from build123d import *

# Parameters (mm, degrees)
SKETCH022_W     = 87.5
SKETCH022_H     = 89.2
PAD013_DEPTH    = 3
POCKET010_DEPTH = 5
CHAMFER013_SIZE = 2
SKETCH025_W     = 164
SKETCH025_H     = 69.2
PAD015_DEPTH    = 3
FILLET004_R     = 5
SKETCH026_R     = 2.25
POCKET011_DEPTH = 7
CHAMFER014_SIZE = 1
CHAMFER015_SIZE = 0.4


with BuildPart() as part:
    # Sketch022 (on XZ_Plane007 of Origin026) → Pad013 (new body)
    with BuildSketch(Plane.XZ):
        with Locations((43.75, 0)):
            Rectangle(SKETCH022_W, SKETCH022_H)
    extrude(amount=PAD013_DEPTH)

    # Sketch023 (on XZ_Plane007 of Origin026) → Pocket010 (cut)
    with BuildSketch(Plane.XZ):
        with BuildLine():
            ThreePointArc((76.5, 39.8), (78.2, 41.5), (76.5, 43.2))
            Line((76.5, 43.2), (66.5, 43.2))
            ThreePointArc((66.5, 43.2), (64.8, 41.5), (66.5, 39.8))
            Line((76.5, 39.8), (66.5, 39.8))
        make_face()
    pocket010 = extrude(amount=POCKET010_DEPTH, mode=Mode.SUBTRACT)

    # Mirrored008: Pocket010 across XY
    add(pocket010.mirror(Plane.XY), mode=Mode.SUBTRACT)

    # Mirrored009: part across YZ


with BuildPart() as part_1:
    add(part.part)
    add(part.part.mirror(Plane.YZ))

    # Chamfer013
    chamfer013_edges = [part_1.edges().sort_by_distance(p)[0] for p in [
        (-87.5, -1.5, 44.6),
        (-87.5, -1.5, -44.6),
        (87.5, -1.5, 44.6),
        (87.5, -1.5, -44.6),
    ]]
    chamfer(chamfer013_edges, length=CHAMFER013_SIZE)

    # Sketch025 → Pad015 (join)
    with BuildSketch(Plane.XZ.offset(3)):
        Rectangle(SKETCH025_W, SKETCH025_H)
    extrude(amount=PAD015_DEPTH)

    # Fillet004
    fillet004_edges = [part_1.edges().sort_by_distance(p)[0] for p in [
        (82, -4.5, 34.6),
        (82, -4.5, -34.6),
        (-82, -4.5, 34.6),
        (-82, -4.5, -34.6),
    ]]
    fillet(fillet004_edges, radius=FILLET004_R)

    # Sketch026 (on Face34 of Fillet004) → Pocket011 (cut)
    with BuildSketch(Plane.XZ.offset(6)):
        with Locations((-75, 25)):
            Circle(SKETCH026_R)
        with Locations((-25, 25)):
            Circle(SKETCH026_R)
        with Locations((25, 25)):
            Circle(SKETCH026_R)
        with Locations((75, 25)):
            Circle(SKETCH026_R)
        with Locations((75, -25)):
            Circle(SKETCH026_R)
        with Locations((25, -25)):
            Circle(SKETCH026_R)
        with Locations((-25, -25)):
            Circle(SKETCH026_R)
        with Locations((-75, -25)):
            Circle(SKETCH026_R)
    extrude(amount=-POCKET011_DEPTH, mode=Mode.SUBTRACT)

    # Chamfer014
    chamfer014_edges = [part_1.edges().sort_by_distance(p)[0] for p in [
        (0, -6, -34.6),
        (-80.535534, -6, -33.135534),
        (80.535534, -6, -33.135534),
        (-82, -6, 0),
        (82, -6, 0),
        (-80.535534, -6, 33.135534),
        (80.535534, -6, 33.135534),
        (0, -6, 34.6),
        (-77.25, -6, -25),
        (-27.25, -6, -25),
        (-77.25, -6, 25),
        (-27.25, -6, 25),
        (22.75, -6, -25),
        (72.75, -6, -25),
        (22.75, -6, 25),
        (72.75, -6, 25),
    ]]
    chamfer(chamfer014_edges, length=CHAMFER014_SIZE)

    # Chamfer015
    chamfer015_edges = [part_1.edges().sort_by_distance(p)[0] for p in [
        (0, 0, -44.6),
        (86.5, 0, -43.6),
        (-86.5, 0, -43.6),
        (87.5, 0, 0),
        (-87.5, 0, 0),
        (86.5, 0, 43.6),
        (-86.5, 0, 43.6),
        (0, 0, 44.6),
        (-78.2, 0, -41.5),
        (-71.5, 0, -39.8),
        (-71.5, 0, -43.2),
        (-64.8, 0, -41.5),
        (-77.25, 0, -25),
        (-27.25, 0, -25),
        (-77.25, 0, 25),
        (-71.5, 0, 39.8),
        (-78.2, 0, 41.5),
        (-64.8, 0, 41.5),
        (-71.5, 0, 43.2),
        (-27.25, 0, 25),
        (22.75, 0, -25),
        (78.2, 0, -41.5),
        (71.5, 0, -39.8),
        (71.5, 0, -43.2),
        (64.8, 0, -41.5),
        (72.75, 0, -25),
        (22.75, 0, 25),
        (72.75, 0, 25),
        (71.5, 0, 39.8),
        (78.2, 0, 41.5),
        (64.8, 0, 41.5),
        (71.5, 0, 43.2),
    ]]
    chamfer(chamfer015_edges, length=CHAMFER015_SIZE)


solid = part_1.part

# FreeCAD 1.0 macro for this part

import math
import FreeCAD as App
import Part
import Sketcher

V = App.Vector


def edges_at(feature, points):
    """Names of the edges that pass closest to the given points."""
    edges = feature.Shape.Edges
    near = lambda p: min(range(len(edges)), key=lambda i: edges[i].distToShape(Part.Vertex(*p))[0])
    return sorted({f"Edge{near(p) + 1}" for p in points})

doc = App.newDocument("Part")
body = doc.addObject("PartDesign::Body", "Body")

# Sketch on XZ plane
sketch1 = body.newObject("Sketcher::SketchObject", "Sketch")
sketch1.AttachmentSupport = (doc.getObject("XZ_Plane"), [""])
sketch1.MapMode = "FlatFace"
sketch1.addGeometry(Part.LineSegment(V(0, 45, 0), V(0, -45, 0)), False)
sketch1.addGeometry(Part.LineSegment(V(0, -45, 0), V(88, -45, 0)), False)
sketch1.addGeometry(Part.LineSegment(V(88, -45, 0), V(88, 45, 0)), False)
sketch1.addGeometry(Part.LineSegment(V(88, 45, 0), V(0, 45, 0)), False)
sketch1.addConstraint(Sketcher.Constraint("Coincident", 0, 2, 1, 1))
sketch1.addConstraint(Sketcher.Constraint("Coincident", 1, 2, 2, 1))
sketch1.addConstraint(Sketcher.Constraint("Coincident", 2, 2, 3, 1))
sketch1.addConstraint(Sketcher.Constraint("Coincident", 3, 2, 0, 1))
sketch1.addConstraint(Sketcher.Constraint("Vertical", 0))
sketch1.addConstraint(Sketcher.Constraint("Horizontal", 1))
sketch1.addConstraint(Sketcher.Constraint("Vertical", 2))
sketch1.addConstraint(Sketcher.Constraint("Horizontal", 3))
sketch1.addConstraint(Sketcher.Constraint("Symmetric", 0, 2, 3, 2, -1, 1))
sketch1.addConstraint(Sketcher.Constraint("DistanceX", 1, 1, 1, 2, 87.5))
sketch1.addConstraint(Sketcher.Constraint("DistanceY", 0, 2, 0, 1, 89.2))
pad1 = body.newObject("PartDesign::Pad", "Pad")
pad1.Profile = sketch1
pad1.Length = 3

# Sketch on XZ plane
sketch2 = body.newObject("Sketcher::SketchObject", "Sketch001")
sketch2.AttachmentSupport = (doc.getObject("XZ_Plane"), [""])
sketch2.MapMode = "FlatFace"
sketch2.addGeometry(Part.ArcOfCircle(Part.Circle(V(76.5, 41.5, 0), V(0, 0, 1), 1.7), math.radians(-90), math.radians(90)), False)
sketch2.addGeometry(Part.LineSegment(V(76.5, 43.2, 0), V(66.5, 43.2, 0)), False)
sketch2.addGeometry(Part.ArcOfCircle(Part.Circle(V(66.5, 41.5, 0), V(0, 0, 1), 1.7), math.radians(90), math.radians(270)), False)
sketch2.addGeometry(Part.LineSegment(V(66.5, 39.8, 0), V(76.5, 39.8, 0)), False)
sketch2.addConstraint(Sketcher.Constraint("Tangent", 0, 2, 1, 1))
sketch2.addConstraint(Sketcher.Constraint("Tangent", 1, 2, 2, 1))
sketch2.addConstraint(Sketcher.Constraint("Tangent", 2, 2, 3, 1))
sketch2.addConstraint(Sketcher.Constraint("Tangent", 3, 2, 0, 1))
sketch2.addConstraint(Sketcher.Constraint("Horizontal", 1))
sketch2.addConstraint(Sketcher.Constraint("Horizontal", 3))
sketch2.addConstraint(Sketcher.Constraint("Radius", 0, 1.7))
sketch2.addConstraint(Sketcher.Constraint("DistanceX", 1, 2, 1, 1, 10.0))
sketch2.addConstraint(Sketcher.Constraint("DistanceX", -1, 1, 0, 3, 76.5))
sketch2.addConstraint(Sketcher.Constraint("DistanceY", -1, 1, 0, 3, 41.5))
pocket1 = body.newObject("PartDesign::Pocket", "Pocket")
pocket1.Profile = sketch2
pocket1.Length = 5
pocket1.Reversed = True
doc.recompute()

mirrored = body.newObject("PartDesign::Mirrored", "Mirrored")
mirrored.Originals = [pocket1]
mirrored.MirrorPlane = (doc.getObject("XY_Plane"), [""])
body.Tip = mirrored
body2 = doc.addObject("PartDesign::Body", "Body001")
doc.recompute()

body2.BaseFeature = body
doc.recompute()

mirroring = doc.addObject("Part::Mirroring", "Mirroring")
mirroring.Source = body
mirroring.Base = V(0, 0, 0)
mirroring.Normal = V(1, 0, 0)
body3 = doc.addObject("PartDesign::Body", "Body002")
body3.BaseFeature = mirroring
boolean = body2.newObject("PartDesign::Boolean", "Boolean")
boolean.Type = "Fuse"
boolean.addObjects([body3])
doc.recompute()

chamfer = body2.newObject("PartDesign::Chamfer", "Chamfer")
chamfer.Base = (boolean, edges_at(boolean, [
    (-87.5, -1.5, 44.6),
    (-87.5, -1.5, -44.6),
    (87.5, -1.5, 44.6),
    (87.5, -1.5, -44.6),
]))
chamfer.Size = 2

# Sketch on XZ plane
sketch3 = body2.newObject("Sketcher::SketchObject", "Sketch002")
sketch3.AttachmentSupport = (doc.getObject("XZ_Plane001"), [""])
sketch3.MapMode = "FlatFace"
sketch3.AttachmentOffset = App.Placement(V(0, 0, 3), App.Rotation())
sketch3.addGeometry(Part.LineSegment(V(-82, 35, 0), V(-82, -35, 0)), False)
sketch3.addGeometry(Part.LineSegment(V(-82, -35, 0), V(82, -35, 0)), False)
sketch3.addGeometry(Part.LineSegment(V(82, -35, 0), V(82, 35, 0)), False)
sketch3.addGeometry(Part.LineSegment(V(82, 35, 0), V(-82, 35, 0)), False)
sketch3.addConstraint(Sketcher.Constraint("Coincident", 0, 2, 1, 1))
sketch3.addConstraint(Sketcher.Constraint("Coincident", 1, 2, 2, 1))
sketch3.addConstraint(Sketcher.Constraint("Coincident", 2, 2, 3, 1))
sketch3.addConstraint(Sketcher.Constraint("Coincident", 3, 2, 0, 1))
sketch3.addConstraint(Sketcher.Constraint("Vertical", 0))
sketch3.addConstraint(Sketcher.Constraint("Horizontal", 1))
sketch3.addConstraint(Sketcher.Constraint("Vertical", 2))
sketch3.addConstraint(Sketcher.Constraint("Horizontal", 3))
sketch3.addConstraint(Sketcher.Constraint("Symmetric", 0, 2, 2, 2, -1, 1))
sketch3.addConstraint(Sketcher.Constraint("DistanceX", 1, 1, 1, 2, 164.0))
sketch3.addConstraint(Sketcher.Constraint("DistanceY", 0, 2, 0, 1, 69.2))
pad2 = body2.newObject("PartDesign::Pad", "Pad001")
pad2.Profile = sketch3
pad2.Length = 3
doc.recompute()

fillet = body2.newObject("PartDesign::Fillet", "Fillet")
fillet.Base = (pad2, edges_at(pad2, [
    (82, -4.5, 34.6),
    (82, -4.5, -34.6),
    (-82, -4.5, 34.6),
    (-82, -4.5, -34.6),
]))
fillet.Radius = 5

# Sketch on XZ plane
sketch4 = body2.newObject("Sketcher::SketchObject", "Sketch003")
sketch4.AttachmentSupport = (doc.getObject("XZ_Plane001"), [""])
sketch4.MapMode = "FlatFace"
sketch4.AttachmentOffset = App.Placement(V(0, 0, 6), App.Rotation())
sketch4.addGeometry(Part.Circle(V(-75, 25, 0), V(0, 0, 1), 2.2), False)
sketch4.addGeometry(Part.Circle(V(-25, 25, 0), V(0, 0, 1), 2.2), False)
sketch4.addGeometry(Part.Circle(V(25, 25, 0), V(0, 0, 1), 2.2), False)
sketch4.addGeometry(Part.Circle(V(75, 25, 0), V(0, 0, 1), 2.2), False)
sketch4.addGeometry(Part.Circle(V(75, -25, 0), V(0, 0, 1), 2.2), False)
sketch4.addGeometry(Part.Circle(V(25, -25, 0), V(0, 0, 1), 2.2), False)
sketch4.addGeometry(Part.Circle(V(-25, -25, 0), V(0, 0, 1), 2.2), False)
sketch4.addGeometry(Part.Circle(V(-75, -25, 0), V(0, 0, 1), 2.2), False)
sketch4.addConstraint(Sketcher.Constraint("Equal", 0, 1))
sketch4.addConstraint(Sketcher.Constraint("Equal", 1, 2))
sketch4.addConstraint(Sketcher.Constraint("Equal", 2, 3))
sketch4.addConstraint(Sketcher.Constraint("Equal", 3, 4))
sketch4.addConstraint(Sketcher.Constraint("Equal", 4, 5))
sketch4.addConstraint(Sketcher.Constraint("Equal", 5, 6))
sketch4.addConstraint(Sketcher.Constraint("Equal", 6, 7))
sketch4.addConstraint(Sketcher.Constraint("Symmetric", 0, 3, 4, 3, -1, 1))
sketch4.addConstraint(Sketcher.Constraint("Symmetric", 1, 3, 5, 3, -1, 1))
sketch4.addConstraint(Sketcher.Constraint("Symmetric", 2, 3, 6, 3, -1, 1))
sketch4.addConstraint(Sketcher.Constraint("Symmetric", 3, 3, 7, 3, -1, 1))
sketch4.addConstraint(Sketcher.Constraint("Symmetric", 1, 3, 2, 3, -2))
sketch4.addConstraint(Sketcher.Constraint("Symmetric", 0, 3, 3, 3, -2))
sketch4.addConstraint(Sketcher.Constraint("Horizontal", 0, 3, 1, 3))
sketch4.addConstraint(Sketcher.Constraint("Diameter", 0, 4.5))
sketch4.addConstraint(Sketcher.Constraint("DistanceX", 0, 3, -1, 1, 75.0))
sketch4.addConstraint(Sketcher.Constraint("DistanceY", -1, 1, 0, 3, 25.0))
sketch4.addConstraint(Sketcher.Constraint("DistanceX", 1, 3, -1, 1, 25.0))
pocket2 = body2.newObject("PartDesign::Pocket", "Pocket001")
pocket2.Profile = sketch4
pocket2.Length = 7
doc.recompute()

chamfer2 = body2.newObject("PartDesign::Chamfer", "Chamfer001")
chamfer2.Base = (pocket2, edges_at(pocket2, [
    (0, -6, -34.6),
    (-80.536, -6, -33.136),
    (80.536, -6, -33.136),
    (-82, -6, 0),
    (82, -6, 0),
    (-80.536, -6, 33.136),
    (80.536, -6, 33.136),
    (0, -6, 34.6),
    (-77.25, -6, -25),
    (-27.25, -6, -25),
    (-77.25, -6, 25),
    (-27.25, -6, 25),
    (22.75, -6, -25),
    (72.75, -6, -25),
    (22.75, -6, 25),
    (72.75, -6, 25),
]))
chamfer2.Size = 1
doc.recompute()

chamfer3 = body2.newObject("PartDesign::Chamfer", "Chamfer002")
chamfer3.Base = (chamfer2, edges_at(chamfer2, [
    (0, 0, -44.6),
    (86.5, 0, -43.6),
    (-86.5, 0, -43.6),
    (87.5, 0, 0),
    (-87.5, 0, 0),
    (86.5, 0, 43.6),
    (-86.5, 0, 43.6),
    (0, 0, 44.6),
    (-78.2, 0, -41.5),
    (-71.5, 0, -39.8),
    (-71.5, 0, -43.2),
    (-64.8, 0, -41.5),
    (-77.25, 0, -25),
    (-27.25, 0, -25),
    (-77.25, 0, 25),
    (-71.5, 0, 39.8),
    (-78.2, 0, 41.5),
    (-64.8, 0, 41.5),
    (-71.5, 0, 43.2),
    (-27.25, 0, 25),
    (22.75, 0, -25),
    (78.2, 0, -41.5),
    (71.5, 0, -39.8),
    (71.5, 0, -43.2),
    (64.8, 0, -41.5),
    (72.75, 0, -25),
    (22.75, 0, 25),
    (72.75, 0, 25),
    (71.5, 0, 39.8),
    (78.2, 0, 41.5),
    (64.8, 0, 41.5),
    (71.5, 0, 43.2),
]))
chamfer3.Size = 0.4
mirroring.Visibility = False

doc.recompute()
